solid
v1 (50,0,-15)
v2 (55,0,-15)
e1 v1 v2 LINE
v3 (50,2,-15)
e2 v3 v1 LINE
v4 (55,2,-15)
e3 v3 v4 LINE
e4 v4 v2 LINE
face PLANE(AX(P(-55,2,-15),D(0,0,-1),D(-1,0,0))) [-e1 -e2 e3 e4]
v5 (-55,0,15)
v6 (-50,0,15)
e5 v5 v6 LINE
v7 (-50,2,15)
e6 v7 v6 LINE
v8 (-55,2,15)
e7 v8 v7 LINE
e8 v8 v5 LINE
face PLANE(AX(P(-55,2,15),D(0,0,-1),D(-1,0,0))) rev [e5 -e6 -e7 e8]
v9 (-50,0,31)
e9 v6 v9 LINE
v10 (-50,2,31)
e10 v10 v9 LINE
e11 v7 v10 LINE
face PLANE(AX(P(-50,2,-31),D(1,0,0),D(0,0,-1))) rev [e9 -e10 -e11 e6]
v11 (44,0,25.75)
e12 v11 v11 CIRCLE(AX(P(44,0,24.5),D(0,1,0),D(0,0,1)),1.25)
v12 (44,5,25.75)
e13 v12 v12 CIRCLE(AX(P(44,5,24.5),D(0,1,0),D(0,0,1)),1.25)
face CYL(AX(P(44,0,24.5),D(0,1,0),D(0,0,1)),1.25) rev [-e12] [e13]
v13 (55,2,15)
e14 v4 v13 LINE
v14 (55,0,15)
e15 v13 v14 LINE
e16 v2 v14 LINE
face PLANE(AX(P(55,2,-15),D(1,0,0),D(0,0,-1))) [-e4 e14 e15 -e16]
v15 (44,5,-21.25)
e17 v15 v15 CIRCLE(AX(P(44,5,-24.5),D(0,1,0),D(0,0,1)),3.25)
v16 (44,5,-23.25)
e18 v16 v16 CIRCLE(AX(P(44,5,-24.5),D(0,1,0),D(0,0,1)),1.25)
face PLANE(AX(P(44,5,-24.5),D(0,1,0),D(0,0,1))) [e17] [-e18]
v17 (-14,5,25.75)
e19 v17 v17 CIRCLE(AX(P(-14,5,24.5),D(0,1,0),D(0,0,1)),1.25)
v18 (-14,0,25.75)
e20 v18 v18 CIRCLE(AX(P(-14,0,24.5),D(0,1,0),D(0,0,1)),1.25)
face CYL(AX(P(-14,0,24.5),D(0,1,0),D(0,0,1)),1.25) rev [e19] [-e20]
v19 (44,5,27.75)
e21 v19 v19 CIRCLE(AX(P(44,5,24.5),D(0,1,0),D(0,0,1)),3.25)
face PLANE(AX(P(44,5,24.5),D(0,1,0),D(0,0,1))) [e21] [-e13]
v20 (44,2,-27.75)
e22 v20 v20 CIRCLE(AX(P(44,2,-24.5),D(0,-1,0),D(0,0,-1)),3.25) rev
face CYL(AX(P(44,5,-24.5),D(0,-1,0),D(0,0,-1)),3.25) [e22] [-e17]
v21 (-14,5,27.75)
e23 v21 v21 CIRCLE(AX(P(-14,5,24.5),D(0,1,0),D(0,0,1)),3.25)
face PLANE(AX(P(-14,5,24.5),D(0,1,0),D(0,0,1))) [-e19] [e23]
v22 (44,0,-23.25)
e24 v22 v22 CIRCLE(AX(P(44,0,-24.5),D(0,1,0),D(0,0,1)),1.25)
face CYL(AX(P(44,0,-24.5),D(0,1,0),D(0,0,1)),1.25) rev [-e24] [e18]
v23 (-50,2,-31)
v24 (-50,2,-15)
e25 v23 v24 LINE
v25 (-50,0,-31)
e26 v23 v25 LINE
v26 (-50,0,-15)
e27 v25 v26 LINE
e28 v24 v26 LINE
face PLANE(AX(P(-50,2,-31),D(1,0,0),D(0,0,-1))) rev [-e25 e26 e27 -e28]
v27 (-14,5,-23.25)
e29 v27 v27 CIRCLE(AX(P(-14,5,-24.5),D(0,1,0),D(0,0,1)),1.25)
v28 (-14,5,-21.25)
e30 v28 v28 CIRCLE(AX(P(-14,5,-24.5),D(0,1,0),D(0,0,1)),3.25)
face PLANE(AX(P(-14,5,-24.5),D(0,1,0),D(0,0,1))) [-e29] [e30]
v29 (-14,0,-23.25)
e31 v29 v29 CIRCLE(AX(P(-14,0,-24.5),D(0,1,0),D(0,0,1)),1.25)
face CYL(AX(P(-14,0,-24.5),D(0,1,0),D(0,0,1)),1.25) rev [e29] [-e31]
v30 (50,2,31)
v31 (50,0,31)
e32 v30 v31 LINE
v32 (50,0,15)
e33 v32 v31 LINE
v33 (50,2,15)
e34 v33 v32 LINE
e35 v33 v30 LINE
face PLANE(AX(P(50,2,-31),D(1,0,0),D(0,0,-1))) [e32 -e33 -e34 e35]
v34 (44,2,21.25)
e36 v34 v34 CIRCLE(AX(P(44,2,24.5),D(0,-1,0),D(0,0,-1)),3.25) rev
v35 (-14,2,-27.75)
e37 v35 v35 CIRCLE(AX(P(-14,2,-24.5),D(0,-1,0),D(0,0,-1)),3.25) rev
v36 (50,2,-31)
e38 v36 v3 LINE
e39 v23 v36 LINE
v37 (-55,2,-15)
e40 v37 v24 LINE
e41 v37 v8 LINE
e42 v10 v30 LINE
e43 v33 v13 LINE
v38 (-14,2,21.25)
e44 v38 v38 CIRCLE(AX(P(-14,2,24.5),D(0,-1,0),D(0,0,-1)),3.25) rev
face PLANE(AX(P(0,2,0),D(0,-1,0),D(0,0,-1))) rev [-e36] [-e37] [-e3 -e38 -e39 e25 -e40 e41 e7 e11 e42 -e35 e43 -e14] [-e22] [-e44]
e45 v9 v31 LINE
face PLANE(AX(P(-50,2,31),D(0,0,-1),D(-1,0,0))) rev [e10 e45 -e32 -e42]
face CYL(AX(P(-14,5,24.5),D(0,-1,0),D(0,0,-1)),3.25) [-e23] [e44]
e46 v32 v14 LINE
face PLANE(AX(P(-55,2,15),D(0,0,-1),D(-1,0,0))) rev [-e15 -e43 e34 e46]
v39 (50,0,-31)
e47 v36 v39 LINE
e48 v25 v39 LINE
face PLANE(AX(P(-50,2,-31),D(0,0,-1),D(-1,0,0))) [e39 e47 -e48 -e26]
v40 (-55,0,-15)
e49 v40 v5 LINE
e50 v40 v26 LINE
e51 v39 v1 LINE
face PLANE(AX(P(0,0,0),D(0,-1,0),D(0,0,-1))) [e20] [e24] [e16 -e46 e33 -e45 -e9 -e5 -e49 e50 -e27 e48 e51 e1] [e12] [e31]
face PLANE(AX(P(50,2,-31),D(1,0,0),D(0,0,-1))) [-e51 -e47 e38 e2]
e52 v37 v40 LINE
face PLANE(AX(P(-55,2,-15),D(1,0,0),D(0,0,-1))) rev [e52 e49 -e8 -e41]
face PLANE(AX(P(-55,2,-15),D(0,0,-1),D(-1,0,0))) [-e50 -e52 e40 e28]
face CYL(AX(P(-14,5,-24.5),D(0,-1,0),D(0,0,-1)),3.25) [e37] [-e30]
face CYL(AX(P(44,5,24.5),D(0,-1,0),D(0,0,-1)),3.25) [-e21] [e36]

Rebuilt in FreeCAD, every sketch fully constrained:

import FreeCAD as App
import Part
import Sketcher

V = App.Vector

doc = App.newDocument("Part")
params = doc.addObject("Spreadsheet::Sheet", "Params")
for row, (alias, value) in enumerate([
    ("sketch1_width", "100 mm"),
    ("sketch1_width2", "5 mm"),
    ("sketch1_height", "16 mm"),
    ("sketch1_height2", "30 mm"),
    ("pad1_length", "2 mm"),
    ("sketch2_diameter", "2.5 mm"),
    ("pocket1_length", "2 mm"),
    ("sketch3_diameter", "6.5 mm"),
    ("sketch3_diameter2", "2.5 mm"),
    ("pad2_length", "3 mm"),
], start=1):
    params.set(f"A{row}", alias)
    params.set(f"B{row}", "=" + value)
    params.setAlias(f"B{row}", alias)

body = doc.addObject("PartDesign::Body", "Body")

# Sketch on XZ plane
sketch1 = doc.addObject("Sketcher::SketchObject", "Sketch")
body.addObject(sketch1)
sketch1.AttachmentSupport = (doc.XZ_Plane, [""])
sketch1.MapMode = "FlatFace"
sketch1.addGeometry([
    Part.LineSegment(V(-50, 15, 0), V(-50, 31, 0)),  # 0
    Part.LineSegment(V(-50, 31, 0), V(50, 31, 0)),  # 1
    Part.LineSegment(V(50, 31, 0), V(50, 15, 0)),  # 2
    Part.LineSegment(V(50, 15, 0), V(55, 15, 0)),  # 3
    Part.LineSegment(V(55, 15, 0), V(55, -15, 0)),  # 4
    Part.LineSegment(V(55, -15, 0), V(50, -15, 0)),  # 5
    Part.LineSegment(V(50, -15, 0), V(50, -31, 0)),  # 6
    Part.LineSegment(V(50, -31, 0), V(-50, -31, 0)),  # 7
    Part.LineSegment(V(-50, -31, 0), V(-50, -15, 0)),  # 8
    Part.LineSegment(V(-50, -15, 0), V(-55, -15, 0)),  # 9
    Part.LineSegment(V(-55, -15, 0), V(-55, 15, 0)),  # 10
    Part.LineSegment(V(-55, 15, 0), V(-50, 15, 0)),  # 11
], False)
sketch1.addConstraint([
    Sketcher.Constraint("Coincident", 0, 2, 1, 1),
    Sketcher.Constraint("Coincident", 1, 2, 2, 1),
    Sketcher.Constraint("Coincident", 2, 2, 3, 1),
    Sketcher.Constraint("Coincident", 3, 2, 4, 1),
    Sketcher.Constraint("Coincident", 4, 2, 5, 1),
    Sketcher.Constraint("Coincident", 5, 2, 6, 1),
    Sketcher.Constraint("Coincident", 6, 2, 7, 1),
    Sketcher.Constraint("Coincident", 7, 2, 8, 1),
    Sketcher.Constraint("Coincident", 8, 2, 9, 1),
    Sketcher.Constraint("Coincident", 9, 2, 10, 1),
    Sketcher.Constraint("Coincident", 10, 2, 11, 1),
    Sketcher.Constraint("Coincident", 11, 2, 0, 1),
    Sketcher.Constraint("Vertical", 0),
    Sketcher.Constraint("Horizontal", 1),
    Sketcher.Constraint("Vertical", 2),
    Sketcher.Constraint("Horizontal", 3),
    Sketcher.Constraint("Vertical", 4),
    Sketcher.Constraint("Horizontal", 5),
    Sketcher.Constraint("Vertical", 6),
    Sketcher.Constraint("Horizontal", 7),
    Sketcher.Constraint("Vertical", 8),
    Sketcher.Constraint("Horizontal", 9),
    Sketcher.Constraint("Vertical", 10),
    Sketcher.Constraint("Horizontal", 11),
    Sketcher.Constraint("Symmetric", 0, 2, 6, 2, -1, 1),
    Sketcher.Constraint("Symmetric", 2, 2, 8, 2, -1, 1),
    Sketcher.Constraint("Symmetric", 4, 2, 10, 2, -1, 1),
    Sketcher.Constraint("Symmetric", 5, 2, 8, 2, -2),
    Sketcher.Constraint("DistanceX", 1, 1, 1, 2, 100.0),
    Sketcher.Constraint("DistanceX", 3, 1, 3, 2, 5.0),
    Sketcher.Constraint("DistanceY", 0, 1, 0, 2, 16.0),
    Sketcher.Constraint("DistanceY", 4, 2, 4, 1, 30.0),
])
sketch1.setExpression("Constraints[28]", "Params.sketch1_width")
sketch1.setExpression("Constraints[29]", "Params.sketch1_width2")
sketch1.setExpression("Constraints[30]", "Params.sketch1_height")
sketch1.setExpression("Constraints[31]", "Params.sketch1_height2")
pad1 = doc.addObject("PartDesign::Pad", "Pad")
body.addObject(pad1)
pad1.Profile = sketch1
pad1.setExpression("Length", "Params.pad1_length")
pad1.Reversed = True

# Sketch on XZ plane
sketch2 = doc.addObject("Sketcher::SketchObject", "Sketch001")
body.addObject(sketch2)
sketch2.AttachmentSupport = (doc.XZ_Plane, [""])
sketch2.MapMode = "FlatFace"
sketch2.AttachmentOffset = App.Placement(V(0, 0, -2), App.Rotation())
sketch2.addGeometry([
    Part.Circle(V(-14, -24.5, 0), V(0, 0, 1), 1.2),
    Part.Circle(V(44, -24.5, 0), V(0, 0, 1), 1.2),
    Part.Circle(V(-14, 24.5, 0), V(0, 0, 1), 1.2),
    Part.Circle(V(44, 24.5, 0), V(0, 0, 1), 1.2),
], False)
sketch2.addConstraint([
    Sketcher.Constraint("Equal", 0, 1),
    Sketcher.Constraint("Equal", 1, 2),
    Sketcher.Constraint("Equal", 2, 3),
    Sketcher.Constraint("Symmetric", 0, 3, 2, 3, -1),
    Sketcher.Constraint("Symmetric", 1, 3, 3, 3, -1),
    Sketcher.Constraint("Horizontal", 0, 3, 1, 3),
    Sketcher.Constraint("Diameter", 0, 2.5),
    Sketcher.Constraint("DistanceX", 0, 3, -1, 1, 14.0),
    Sketcher.Constraint("DistanceX", -1, 1, 1, 3, 44.0),
    Sketcher.Constraint("DistanceY", 0, 3, 2, 3, 49.0),
])
sketch2.setExpression("Constraints[6]", "Params.sketch2_diameter")
pocket1 = doc.addObject("PartDesign::Pocket", "Pocket")
body.addObject(pocket1)
pocket1.Profile = sketch2
pocket1.setExpression("Length", "Params.pocket1_length")
pocket1.Reversed = True

# Sketch on XZ plane
sketch3 = doc.addObject("Sketcher::SketchObject", "Sketch002")
body.addObject(sketch3)
sketch3.AttachmentSupport = (doc.XZ_Plane, [""])
sketch3.MapMode = "FlatFace"
sketch3.AttachmentOffset = App.Placement(V(0, 0, -2), App.Rotation())
sketch3.addGeometry([
    Part.Circle(V(-14, -24.5, 0), V(0, 0, 1), 3.2),  # 0
    Part.Circle(V(-14, -24.5, 0), V(0, 0, 1), 1.2),  # 1
    Part.Circle(V(44, -24.5, 0), V(0, 0, 1), 3.2),  # 2
    Part.Circle(V(44, -24.5, 0), V(0, 0, 1), 1.2),  # 3
    Part.Circle(V(-14, 24.5, 0), V(0, 0, 1), 3.2),  # 4
    Part.Circle(V(-14, 24.5, 0), V(0, 0, 1), 1.2),  # 5
    Part.Circle(V(44, 24.5, 0), V(0, 0, 1), 3.2),  # 6
    Part.Circle(V(44, 24.5, 0), V(0, 0, 1), 1.2),  # 7
], False)
sketch3.addConstraint([
    Sketcher.Constraint("Coincident", 1, 3, 0, 3),
    Sketcher.Constraint("Coincident", 3, 3, 2, 3),
    Sketcher.Constraint("Coincident", 5, 3, 4, 3),
    Sketcher.Constraint("Coincident", 7, 3, 6, 3),
    Sketcher.Constraint("Equal", 0, 2),
    Sketcher.Constraint("Equal", 1, 3),
    Sketcher.Constraint("Equal", 2, 4),
    Sketcher.Constraint("Equal", 3, 5),
    Sketcher.Constraint("Equal", 4, 6),
    Sketcher.Constraint("Equal", 5, 7),
    Sketcher.Constraint("Symmetric", 0, 3, 4, 3, -1),
    Sketcher.Constraint("Symmetric", 2, 3, 6, 3, -1),
    Sketcher.Constraint("Horizontal", 1, 3, 2, 3),
    Sketcher.Constraint("Diameter", 0, 6.5),
    Sketcher.Constraint("Diameter", 1, 2.5),
    Sketcher.Constraint("DistanceX", 0, 3, -1, 1, 14.0),
    Sketcher.Constraint("DistanceX", -1, 1, 2, 3, 44.0),
    Sketcher.Constraint("DistanceY", 0, 3, 4, 3, 49.0),
])
sketch3.setExpression("Constraints[13]", "Params.sketch3_diameter")
sketch3.setExpression("Constraints[14]", "Params.sketch3_diameter2")
pad2 = doc.addObject("PartDesign::Pad", "Pad001")
body.addObject(pad2)
pad2.Profile = sketch3
pad2.setExpression("Length", "Params.pad2_length")
pad2.Reversed = True

doc.recompute()
